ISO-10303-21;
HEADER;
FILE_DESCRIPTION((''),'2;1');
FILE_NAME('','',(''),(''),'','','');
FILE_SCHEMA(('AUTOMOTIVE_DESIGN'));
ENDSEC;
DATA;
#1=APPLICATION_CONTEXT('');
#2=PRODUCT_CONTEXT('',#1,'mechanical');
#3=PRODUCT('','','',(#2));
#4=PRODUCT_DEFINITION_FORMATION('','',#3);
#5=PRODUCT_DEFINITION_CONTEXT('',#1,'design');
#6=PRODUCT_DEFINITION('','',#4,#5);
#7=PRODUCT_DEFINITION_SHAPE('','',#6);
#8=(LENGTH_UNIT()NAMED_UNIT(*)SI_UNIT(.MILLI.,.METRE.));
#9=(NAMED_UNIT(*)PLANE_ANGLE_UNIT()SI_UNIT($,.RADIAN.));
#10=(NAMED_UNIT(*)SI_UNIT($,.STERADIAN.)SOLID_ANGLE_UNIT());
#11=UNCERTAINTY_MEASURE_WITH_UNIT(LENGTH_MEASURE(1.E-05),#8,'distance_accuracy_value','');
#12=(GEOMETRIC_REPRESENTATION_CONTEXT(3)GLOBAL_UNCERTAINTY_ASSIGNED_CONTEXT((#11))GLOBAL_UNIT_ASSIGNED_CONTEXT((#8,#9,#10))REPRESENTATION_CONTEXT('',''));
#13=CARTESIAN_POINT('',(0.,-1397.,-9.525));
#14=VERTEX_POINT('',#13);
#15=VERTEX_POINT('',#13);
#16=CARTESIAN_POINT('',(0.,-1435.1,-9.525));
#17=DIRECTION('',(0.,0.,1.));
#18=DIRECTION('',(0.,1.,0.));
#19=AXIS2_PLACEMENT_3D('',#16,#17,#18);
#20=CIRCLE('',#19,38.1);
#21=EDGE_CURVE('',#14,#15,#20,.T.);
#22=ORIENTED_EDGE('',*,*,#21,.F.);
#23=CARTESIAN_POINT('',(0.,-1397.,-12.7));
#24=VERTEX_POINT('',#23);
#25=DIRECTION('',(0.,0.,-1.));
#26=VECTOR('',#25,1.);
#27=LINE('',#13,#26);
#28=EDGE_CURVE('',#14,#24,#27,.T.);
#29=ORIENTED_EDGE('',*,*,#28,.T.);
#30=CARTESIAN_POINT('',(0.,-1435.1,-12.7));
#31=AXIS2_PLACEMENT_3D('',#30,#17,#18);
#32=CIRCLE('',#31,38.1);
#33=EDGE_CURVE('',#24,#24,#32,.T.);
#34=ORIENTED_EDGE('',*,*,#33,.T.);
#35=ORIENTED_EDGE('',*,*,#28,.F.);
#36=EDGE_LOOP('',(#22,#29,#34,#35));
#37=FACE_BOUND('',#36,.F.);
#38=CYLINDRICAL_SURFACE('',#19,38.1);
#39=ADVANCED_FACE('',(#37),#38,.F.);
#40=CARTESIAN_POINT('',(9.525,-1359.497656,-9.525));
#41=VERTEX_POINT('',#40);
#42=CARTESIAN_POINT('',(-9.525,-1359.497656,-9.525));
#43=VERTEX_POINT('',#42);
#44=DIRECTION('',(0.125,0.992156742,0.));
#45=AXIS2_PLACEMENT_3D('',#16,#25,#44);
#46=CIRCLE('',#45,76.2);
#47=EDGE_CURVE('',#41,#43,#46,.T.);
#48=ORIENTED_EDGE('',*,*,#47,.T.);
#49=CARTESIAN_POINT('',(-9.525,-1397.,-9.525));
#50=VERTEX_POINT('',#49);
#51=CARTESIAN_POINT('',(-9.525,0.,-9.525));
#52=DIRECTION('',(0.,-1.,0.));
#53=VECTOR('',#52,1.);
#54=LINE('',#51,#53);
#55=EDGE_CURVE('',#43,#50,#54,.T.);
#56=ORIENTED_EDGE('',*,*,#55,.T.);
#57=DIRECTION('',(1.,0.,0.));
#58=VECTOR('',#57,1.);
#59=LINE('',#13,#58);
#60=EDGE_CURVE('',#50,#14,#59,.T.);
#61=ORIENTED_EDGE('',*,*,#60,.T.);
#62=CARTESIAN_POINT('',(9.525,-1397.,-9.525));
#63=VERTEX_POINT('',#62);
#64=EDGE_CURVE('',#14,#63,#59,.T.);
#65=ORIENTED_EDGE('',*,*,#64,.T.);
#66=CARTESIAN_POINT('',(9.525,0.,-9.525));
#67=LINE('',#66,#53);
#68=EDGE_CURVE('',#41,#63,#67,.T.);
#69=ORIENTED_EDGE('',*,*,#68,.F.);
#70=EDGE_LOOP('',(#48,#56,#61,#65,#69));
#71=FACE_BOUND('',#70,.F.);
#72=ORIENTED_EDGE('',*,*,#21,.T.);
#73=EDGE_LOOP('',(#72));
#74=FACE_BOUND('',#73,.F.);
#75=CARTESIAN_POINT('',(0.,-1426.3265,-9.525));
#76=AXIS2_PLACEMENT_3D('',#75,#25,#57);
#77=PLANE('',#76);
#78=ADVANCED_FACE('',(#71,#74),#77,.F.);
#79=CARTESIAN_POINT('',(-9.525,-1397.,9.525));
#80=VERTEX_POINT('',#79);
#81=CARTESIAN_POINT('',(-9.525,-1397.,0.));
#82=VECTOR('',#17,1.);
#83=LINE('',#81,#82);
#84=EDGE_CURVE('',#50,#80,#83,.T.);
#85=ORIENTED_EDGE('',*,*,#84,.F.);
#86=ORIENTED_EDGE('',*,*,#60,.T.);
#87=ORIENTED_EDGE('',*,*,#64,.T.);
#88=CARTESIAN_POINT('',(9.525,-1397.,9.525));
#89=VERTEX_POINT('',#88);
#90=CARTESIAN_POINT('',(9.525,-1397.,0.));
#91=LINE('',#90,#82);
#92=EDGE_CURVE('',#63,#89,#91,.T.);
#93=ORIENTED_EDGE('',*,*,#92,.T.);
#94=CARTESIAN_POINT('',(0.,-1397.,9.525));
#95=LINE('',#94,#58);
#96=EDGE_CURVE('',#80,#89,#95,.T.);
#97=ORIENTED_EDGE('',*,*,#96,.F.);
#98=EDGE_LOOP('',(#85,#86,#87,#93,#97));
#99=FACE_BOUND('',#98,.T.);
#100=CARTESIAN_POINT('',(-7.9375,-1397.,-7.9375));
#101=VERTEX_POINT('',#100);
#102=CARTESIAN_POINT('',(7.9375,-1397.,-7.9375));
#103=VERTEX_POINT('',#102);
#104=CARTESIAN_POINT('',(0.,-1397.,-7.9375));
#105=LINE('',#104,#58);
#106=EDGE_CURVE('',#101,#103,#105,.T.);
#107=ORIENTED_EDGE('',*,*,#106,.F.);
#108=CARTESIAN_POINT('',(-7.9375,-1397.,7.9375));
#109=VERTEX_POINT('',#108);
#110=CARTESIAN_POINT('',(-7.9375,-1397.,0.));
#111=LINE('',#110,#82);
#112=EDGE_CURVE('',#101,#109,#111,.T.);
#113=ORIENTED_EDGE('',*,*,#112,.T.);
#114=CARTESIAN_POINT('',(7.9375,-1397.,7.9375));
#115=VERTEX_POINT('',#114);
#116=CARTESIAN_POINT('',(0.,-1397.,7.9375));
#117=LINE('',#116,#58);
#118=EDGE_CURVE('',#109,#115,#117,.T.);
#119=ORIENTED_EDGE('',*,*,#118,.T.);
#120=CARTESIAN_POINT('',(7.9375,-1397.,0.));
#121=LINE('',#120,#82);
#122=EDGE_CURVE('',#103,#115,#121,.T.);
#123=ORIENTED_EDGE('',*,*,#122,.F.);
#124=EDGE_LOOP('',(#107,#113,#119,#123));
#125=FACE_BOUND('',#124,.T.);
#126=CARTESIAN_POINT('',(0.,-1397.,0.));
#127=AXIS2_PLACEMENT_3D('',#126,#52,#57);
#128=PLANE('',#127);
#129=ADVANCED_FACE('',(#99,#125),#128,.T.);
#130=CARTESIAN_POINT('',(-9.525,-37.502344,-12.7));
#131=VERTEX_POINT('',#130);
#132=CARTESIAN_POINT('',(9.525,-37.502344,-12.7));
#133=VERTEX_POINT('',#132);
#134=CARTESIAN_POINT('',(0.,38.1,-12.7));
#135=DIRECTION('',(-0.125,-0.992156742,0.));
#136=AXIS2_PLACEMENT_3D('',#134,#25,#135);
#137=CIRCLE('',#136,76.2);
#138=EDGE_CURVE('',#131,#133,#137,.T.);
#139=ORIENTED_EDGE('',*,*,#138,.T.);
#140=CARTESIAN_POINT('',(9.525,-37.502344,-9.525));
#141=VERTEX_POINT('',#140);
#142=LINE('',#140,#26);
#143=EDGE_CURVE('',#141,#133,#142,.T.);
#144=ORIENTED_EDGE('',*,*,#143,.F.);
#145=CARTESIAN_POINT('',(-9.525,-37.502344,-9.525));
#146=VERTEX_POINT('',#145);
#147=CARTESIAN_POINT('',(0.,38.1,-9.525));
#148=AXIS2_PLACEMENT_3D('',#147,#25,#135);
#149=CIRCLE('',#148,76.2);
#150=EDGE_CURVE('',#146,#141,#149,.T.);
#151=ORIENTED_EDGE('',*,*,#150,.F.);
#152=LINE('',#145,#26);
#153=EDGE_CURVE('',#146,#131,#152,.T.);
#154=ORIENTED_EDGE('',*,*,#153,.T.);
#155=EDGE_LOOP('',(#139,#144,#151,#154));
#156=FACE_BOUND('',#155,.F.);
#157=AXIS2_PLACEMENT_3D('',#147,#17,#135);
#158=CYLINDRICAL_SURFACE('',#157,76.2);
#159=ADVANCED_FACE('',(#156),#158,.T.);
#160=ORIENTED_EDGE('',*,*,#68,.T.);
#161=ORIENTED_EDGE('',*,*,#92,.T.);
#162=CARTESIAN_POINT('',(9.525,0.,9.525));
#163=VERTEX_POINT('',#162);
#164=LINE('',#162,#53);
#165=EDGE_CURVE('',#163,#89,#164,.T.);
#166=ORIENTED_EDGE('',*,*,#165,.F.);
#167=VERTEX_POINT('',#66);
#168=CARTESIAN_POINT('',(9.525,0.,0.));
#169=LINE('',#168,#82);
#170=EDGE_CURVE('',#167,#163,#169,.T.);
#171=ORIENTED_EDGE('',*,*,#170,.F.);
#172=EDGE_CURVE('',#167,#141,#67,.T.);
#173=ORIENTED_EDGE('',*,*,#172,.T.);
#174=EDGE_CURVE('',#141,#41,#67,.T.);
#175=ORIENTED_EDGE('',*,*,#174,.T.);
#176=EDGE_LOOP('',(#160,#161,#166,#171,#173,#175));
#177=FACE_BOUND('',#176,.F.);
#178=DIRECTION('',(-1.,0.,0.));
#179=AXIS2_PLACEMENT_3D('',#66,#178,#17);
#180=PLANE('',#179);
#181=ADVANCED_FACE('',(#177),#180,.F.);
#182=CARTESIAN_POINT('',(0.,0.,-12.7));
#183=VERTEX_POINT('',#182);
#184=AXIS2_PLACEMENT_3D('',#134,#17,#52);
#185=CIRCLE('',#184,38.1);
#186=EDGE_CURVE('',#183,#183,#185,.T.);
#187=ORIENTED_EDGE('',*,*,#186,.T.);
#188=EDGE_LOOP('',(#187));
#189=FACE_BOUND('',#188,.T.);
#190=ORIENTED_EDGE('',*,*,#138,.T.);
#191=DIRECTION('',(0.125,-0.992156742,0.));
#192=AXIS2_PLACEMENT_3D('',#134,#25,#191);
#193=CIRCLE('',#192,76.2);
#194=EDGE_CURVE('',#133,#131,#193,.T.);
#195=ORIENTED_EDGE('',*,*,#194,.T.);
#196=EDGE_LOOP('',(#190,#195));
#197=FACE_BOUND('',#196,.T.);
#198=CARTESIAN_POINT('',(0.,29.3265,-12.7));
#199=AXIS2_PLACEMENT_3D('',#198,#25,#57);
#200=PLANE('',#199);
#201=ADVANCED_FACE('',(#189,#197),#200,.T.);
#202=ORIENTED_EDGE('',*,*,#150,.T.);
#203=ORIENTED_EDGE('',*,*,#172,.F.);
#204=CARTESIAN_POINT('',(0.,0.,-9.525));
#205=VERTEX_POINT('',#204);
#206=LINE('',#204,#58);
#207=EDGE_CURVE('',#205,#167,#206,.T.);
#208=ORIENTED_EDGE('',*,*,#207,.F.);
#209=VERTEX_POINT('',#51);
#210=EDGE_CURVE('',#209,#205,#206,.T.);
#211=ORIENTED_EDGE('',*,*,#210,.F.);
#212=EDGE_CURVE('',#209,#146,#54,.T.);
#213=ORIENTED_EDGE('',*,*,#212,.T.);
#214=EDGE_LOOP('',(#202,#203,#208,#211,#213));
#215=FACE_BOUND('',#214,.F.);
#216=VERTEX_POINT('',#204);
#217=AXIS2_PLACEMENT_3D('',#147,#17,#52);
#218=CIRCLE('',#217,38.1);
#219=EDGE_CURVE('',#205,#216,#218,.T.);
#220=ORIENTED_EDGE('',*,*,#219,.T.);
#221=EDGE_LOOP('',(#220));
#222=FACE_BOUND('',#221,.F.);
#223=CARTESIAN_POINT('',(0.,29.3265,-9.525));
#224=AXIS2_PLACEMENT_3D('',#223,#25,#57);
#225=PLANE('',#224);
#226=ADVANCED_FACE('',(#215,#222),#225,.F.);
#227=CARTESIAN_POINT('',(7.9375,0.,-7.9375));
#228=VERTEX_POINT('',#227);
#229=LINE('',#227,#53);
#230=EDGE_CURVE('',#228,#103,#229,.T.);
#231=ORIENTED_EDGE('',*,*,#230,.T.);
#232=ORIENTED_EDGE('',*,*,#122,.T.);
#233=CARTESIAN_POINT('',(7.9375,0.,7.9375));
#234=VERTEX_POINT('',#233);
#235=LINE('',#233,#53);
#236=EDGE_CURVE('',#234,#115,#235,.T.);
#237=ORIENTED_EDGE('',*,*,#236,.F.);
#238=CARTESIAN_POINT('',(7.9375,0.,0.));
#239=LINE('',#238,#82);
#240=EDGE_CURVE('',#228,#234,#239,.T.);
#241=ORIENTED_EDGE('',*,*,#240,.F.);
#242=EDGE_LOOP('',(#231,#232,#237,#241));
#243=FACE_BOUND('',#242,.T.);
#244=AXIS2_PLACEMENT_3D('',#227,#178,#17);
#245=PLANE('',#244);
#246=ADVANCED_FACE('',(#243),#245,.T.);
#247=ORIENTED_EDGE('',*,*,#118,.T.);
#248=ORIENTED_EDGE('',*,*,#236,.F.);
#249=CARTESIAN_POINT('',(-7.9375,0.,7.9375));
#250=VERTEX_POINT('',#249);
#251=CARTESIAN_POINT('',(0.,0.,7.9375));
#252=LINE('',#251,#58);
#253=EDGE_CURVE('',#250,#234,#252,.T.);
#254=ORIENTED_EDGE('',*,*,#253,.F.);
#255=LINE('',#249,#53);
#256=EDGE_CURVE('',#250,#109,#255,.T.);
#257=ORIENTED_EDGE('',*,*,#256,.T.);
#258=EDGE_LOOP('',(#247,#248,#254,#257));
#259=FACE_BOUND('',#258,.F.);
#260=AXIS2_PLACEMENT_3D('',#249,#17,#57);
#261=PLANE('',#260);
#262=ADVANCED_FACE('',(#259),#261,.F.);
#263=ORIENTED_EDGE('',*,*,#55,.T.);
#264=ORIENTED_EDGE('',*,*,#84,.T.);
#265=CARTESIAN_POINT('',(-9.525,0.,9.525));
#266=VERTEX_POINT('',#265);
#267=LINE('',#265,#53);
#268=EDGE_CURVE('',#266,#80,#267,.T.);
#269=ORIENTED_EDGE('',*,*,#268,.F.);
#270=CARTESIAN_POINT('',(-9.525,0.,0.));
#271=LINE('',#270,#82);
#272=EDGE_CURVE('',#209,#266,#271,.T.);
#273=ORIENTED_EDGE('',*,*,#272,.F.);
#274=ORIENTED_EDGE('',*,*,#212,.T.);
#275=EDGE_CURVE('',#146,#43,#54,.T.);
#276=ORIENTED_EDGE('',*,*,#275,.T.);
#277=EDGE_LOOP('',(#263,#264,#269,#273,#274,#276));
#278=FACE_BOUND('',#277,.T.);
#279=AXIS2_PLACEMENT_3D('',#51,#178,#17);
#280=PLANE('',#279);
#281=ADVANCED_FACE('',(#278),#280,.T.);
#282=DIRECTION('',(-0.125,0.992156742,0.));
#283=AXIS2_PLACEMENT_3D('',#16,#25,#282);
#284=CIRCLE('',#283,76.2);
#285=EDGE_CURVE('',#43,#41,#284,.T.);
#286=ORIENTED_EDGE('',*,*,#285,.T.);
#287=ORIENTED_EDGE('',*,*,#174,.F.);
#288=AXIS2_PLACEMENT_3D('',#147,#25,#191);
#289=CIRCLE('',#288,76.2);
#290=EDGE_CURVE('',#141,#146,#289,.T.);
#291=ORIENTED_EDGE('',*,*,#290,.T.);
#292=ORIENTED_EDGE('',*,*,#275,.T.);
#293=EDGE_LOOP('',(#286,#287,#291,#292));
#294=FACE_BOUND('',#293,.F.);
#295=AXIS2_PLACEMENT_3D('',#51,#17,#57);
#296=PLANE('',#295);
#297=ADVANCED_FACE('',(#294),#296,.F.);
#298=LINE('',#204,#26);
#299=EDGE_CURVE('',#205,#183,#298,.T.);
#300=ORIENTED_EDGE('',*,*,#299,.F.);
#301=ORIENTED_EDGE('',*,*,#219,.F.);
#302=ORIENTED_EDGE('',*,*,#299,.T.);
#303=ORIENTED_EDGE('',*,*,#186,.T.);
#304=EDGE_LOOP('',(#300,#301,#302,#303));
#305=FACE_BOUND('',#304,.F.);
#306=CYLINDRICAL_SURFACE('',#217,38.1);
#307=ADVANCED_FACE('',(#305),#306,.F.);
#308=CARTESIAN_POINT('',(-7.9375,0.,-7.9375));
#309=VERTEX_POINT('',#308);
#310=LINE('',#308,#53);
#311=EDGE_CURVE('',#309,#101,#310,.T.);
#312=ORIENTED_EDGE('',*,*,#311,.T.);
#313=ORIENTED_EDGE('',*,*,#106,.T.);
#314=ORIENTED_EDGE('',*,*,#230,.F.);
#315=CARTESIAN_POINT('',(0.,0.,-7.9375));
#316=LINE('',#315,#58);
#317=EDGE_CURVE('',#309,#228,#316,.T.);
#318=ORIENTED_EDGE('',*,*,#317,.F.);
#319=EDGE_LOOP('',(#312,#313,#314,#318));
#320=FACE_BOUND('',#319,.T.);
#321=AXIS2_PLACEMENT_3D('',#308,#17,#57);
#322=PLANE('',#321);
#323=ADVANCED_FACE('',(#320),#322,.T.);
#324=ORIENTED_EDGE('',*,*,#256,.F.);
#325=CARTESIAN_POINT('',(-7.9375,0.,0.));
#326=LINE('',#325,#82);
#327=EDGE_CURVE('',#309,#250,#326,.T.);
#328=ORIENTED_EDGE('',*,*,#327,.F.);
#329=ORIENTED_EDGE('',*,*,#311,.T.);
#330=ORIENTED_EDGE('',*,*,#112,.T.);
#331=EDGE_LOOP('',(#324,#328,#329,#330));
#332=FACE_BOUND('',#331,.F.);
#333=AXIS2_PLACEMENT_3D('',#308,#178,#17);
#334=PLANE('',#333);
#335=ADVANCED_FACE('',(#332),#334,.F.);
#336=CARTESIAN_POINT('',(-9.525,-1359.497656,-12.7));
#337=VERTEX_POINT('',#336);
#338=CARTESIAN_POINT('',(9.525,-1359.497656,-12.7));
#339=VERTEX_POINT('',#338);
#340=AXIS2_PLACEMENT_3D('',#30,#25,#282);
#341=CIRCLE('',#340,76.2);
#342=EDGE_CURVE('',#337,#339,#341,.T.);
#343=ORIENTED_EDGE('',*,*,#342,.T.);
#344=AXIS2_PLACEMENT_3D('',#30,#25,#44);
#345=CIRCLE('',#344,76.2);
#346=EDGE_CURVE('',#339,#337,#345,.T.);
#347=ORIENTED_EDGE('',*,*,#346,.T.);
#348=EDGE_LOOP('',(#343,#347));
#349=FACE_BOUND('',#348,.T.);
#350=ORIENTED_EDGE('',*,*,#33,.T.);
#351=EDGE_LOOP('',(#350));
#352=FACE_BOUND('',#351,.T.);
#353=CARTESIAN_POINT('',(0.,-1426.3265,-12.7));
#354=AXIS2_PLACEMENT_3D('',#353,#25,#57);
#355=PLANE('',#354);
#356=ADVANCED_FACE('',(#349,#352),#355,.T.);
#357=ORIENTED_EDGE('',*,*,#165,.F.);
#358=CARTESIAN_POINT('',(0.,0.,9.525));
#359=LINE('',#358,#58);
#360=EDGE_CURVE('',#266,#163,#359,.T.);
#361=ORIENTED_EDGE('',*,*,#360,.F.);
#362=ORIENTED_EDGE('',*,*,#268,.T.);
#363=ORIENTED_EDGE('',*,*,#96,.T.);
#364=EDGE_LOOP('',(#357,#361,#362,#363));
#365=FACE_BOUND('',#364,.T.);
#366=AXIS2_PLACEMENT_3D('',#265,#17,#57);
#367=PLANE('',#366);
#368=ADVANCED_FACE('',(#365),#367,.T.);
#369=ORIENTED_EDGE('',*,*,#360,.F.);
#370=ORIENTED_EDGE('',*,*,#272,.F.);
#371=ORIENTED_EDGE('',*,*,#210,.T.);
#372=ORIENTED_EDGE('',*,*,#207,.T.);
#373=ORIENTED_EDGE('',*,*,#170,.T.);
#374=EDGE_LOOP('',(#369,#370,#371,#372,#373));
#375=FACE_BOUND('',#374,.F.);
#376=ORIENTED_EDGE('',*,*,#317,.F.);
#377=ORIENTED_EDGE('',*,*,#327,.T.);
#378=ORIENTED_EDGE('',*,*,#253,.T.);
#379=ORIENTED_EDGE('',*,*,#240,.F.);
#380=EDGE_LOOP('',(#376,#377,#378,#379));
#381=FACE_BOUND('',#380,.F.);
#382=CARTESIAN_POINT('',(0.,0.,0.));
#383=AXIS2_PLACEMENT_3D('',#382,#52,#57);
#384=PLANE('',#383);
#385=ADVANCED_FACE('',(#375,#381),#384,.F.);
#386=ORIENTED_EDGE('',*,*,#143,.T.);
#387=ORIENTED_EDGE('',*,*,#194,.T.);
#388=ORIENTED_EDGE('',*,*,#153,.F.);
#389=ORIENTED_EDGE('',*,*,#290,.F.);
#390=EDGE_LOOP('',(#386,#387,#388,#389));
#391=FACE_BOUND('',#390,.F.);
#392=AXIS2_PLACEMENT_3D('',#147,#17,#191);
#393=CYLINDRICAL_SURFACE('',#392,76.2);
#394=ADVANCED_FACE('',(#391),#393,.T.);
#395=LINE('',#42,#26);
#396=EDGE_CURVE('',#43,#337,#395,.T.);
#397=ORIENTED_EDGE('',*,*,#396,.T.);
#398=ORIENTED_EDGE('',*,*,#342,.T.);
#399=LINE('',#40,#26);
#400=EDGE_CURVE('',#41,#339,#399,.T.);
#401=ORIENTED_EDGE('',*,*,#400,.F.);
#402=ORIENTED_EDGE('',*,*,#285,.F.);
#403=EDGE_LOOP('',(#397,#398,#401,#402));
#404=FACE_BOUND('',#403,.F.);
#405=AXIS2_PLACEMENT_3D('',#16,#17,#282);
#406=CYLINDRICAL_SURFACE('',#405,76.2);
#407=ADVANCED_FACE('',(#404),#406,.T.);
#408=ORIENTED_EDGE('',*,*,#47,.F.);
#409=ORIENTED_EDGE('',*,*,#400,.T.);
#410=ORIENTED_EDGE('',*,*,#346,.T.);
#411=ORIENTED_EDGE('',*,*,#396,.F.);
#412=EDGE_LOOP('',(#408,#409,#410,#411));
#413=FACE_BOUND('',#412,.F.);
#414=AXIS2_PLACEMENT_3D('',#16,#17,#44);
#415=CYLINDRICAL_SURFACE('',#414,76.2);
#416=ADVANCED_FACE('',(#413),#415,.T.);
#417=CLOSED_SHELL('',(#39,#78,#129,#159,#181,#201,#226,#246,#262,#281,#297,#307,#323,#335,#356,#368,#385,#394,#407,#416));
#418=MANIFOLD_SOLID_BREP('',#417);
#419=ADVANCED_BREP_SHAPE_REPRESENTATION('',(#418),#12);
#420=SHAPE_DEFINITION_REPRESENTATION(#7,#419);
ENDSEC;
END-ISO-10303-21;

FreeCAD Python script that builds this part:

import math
import FreeCAD as App
import Part
import Sketcher

V = App.Vector
Q = App.Units.Quantity

doc = App.newDocument("Part")
body = doc.addObject("PartDesign::Body", "Body")

# Sketch on XZ plane
sketch1 = body.newObject("Sketcher::SketchObject", "Sketch")
sketch1.AttachmentSupport = (doc.getObject("XZ_Plane"), [""])
sketch1.MapMode = "FlatFace"
sketch1.addGeometry([
    Part.LineSegment(V(-10, 10, 0), V(-10, -10, 0)),  # 0
    Part.LineSegment(V(-10, -10, 0), V(10, -10, 0)),  # 1
    Part.LineSegment(V(10, -10, 0), V(10, 10, 0)),  # 2
    Part.LineSegment(V(10, 10, 0), V(-10, 10, 0)),  # 3
    Part.LineSegment(V(8, -8, 0), V(-8, -8, 0)),  # 4
    Part.LineSegment(V(-8, -8, 0), V(-8, 8, 0)),  # 5
    Part.LineSegment(V(-8, 8, 0), V(8, 8, 0)),  # 6
    Part.LineSegment(V(8, 8, 0), V(8, -8, 0)),  # 7
], False)
sketch1.addConstraint([
    Sketcher.Constraint("Coincident", 0, 2, 1, 1),
    Sketcher.Constraint("Coincident", 1, 2, 2, 1),
    Sketcher.Constraint("Coincident", 2, 2, 3, 1),
    Sketcher.Constraint("Coincident", 3, 2, 0, 1),
    Sketcher.Constraint("Coincident", 4, 2, 5, 1),
    Sketcher.Constraint("Coincident", 5, 2, 6, 1),
    Sketcher.Constraint("Coincident", 6, 2, 7, 1),
    Sketcher.Constraint("Coincident", 7, 2, 4, 1),
    Sketcher.Constraint("Vertical", 0),
    Sketcher.Constraint("Horizontal", 1),
    Sketcher.Constraint("Vertical", 2),
    Sketcher.Constraint("Horizontal", 3),
    Sketcher.Constraint("Horizontal", 4),
    Sketcher.Constraint("Vertical", 5),
    Sketcher.Constraint("Horizontal", 6),
    Sketcher.Constraint("Vertical", 7),
    Sketcher.Constraint("Symmetric", 0, 2, 2, 2, -1, 1),
    Sketcher.Constraint("Symmetric", 4, 2, 6, 2, -1, 1),
    Sketcher.Constraint("Equal", 3, 0),
    Sketcher.Constraint("Equal", 6, 5),
    Sketcher.Constraint("DistanceX", 1, 1, 1, 2, Q("0.75 in")),
    Sketcher.Constraint("DistanceX", 4, 2, 4, 1, Q("0.625 in")),
])
pad1 = body.newObject("PartDesign::Pad", "Pad")
pad1.Profile = sketch1
pad1.Length = Q("55 in")

# Sketch on XY plane
sketch2 = body.newObject("Sketcher::SketchObject", "Sketch001")
sketch2.AttachmentSupport = (doc.getObject("XY_Plane"), [""])
sketch2.MapMode = "FlatFace"
sketch2.AttachmentOffset = App.Placement(V(0, 0, -0.375 * 25.4), App.Rotation())
sketch2.addGeometry([
    Part.ArcOfCircle(Part.Circle(V(0, 38, 0), V(0, 0, 1), 76), math.radians(-83), math.radians(263)),
    Part.ArcOfCircle(Part.Circle(V(0, 38, 0), V(0, 0, 1), 76), math.radians(-97.18), math.radians(-82.82)),
    Part.Circle(V(0, 38, 0), V(0, 0, 1), 38),
], False)
sketch2.addConstraint([
    Sketcher.Constraint("Tangent", 0, 1, 1, 2),
    Sketcher.Constraint("Coincident", 1, 1, 0, 2),
    Sketcher.Constraint("Coincident", 2, 3, 0, 3),
    Sketcher.Constraint("Symmetric", 0, 1, 1, 1, -2),
    Sketcher.Constraint("Diameter", 2, Q("3 in")),
    Sketcher.Constraint("Radius", 0, Q("3 in")),
    Sketcher.Constraint("DistanceY", -1, 1, 0, 3, Q("1.5 in")),
    Sketcher.Constraint("DistanceX", 1, 1, 0, 1, Q("0.75 in")),
])
pad2 = body.newObject("PartDesign::Pad", "Pad001")
pad2.Profile = sketch2
pad2.Length = Q("0.125 in")
pad2.Reversed = True

# Sketch on XY plane
sketch3 = body.newObject("Sketcher::SketchObject", "Sketch002")
sketch3.AttachmentSupport = (doc.getObject("XY_Plane"), [""])
sketch3.MapMode = "FlatFace"
sketch3.AttachmentOffset = App.Placement(V(0, 0, -0.375 * 25.4), App.Rotation())
sketch3.addGeometry([
    Part.ArcOfCircle(Part.Circle(V(0, -1435, 0), V(0, 0, 1), 76), math.radians(97), math.radians(443)),
    Part.ArcOfCircle(Part.Circle(V(0, -1435, 0), V(0, 0, 1), 76), math.radians(82.82), math.radians(97.18)),
    Part.Circle(V(0, -1435, 0), V(0, 0, 1), 38),
], False)
sketch3.addConstraint([
    Sketcher.Constraint("Tangent", 0, 1, 1, 2),
    Sketcher.Constraint("Coincident", 1, 1, 0, 2),
    Sketcher.Constraint("Coincident", 2, 3, 0, 3),
    Sketcher.Constraint("Symmetric", 0, 1, 1, 1, -2),
    Sketcher.Constraint("Diameter", 2, Q("3 in")),
    Sketcher.Constraint("Radius", 0, Q("3 in")),
    Sketcher.Constraint("DistanceY", 0, 3, -1, 1, Q("56.5 in")),
    Sketcher.Constraint("DistanceX", 0, 1, 1, 1, Q("0.75 in")),
])
pad3 = body.newObject("PartDesign::Pad", "Pad002")
pad3.Profile = sketch3
pad3.Length = Q("0.125 in")
pad3.Reversed = True

doc.recompute()
